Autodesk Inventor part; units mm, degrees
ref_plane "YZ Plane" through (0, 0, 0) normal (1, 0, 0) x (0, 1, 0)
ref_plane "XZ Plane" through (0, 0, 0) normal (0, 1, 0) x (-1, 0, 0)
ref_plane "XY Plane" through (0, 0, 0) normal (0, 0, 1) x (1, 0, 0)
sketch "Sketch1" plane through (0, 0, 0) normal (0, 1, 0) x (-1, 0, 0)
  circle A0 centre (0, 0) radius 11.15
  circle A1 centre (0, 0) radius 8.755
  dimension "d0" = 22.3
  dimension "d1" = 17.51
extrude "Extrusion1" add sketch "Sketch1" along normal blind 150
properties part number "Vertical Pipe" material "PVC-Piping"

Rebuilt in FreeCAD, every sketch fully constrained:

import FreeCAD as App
import Part
import Sketcher
from FreeCAD import Vector
Q = App.Units.Quantity

doc = App.newDocument("Part")
body = doc.addObject("PartDesign::Body", "Body")

# Sketch on XZ plane
sketch1 = doc.addObject("Sketcher::SketchObject", "Sketch")
body.addObject(sketch1)
sketch1.AttachmentSupport = (doc.XZ_Plane, [""])
sketch1.MapMode = "FlatFace"
sketch1.addGeometry(Part.Circle(Vector(0, 0, 0), Vector(0, 0, 1), 11.15), False)
sketch1.addGeometry(Part.Circle(Vector(0, 0, 0), Vector(0, 0, 1), 8.755), False)
sketch1.addConstraint(Sketcher.Constraint("Coincident", 0, 3, -1, 1))
sketch1.addConstraint(Sketcher.Constraint("Coincident", 1, 3, -1, 1))
sketch1.addConstraint(Sketcher.Constraint("Diameter", 0, Q("22.3 mm")))
sketch1.addConstraint(Sketcher.Constraint("Diameter", 1, Q("17.51 mm")))
pad1 = doc.addObject("PartDesign::Pad", "Pad")
body.addObject(pad1)
pad1.Profile = sketch1
pad1.Length = 150
pad1.Reversed = True

doc.recompute()
